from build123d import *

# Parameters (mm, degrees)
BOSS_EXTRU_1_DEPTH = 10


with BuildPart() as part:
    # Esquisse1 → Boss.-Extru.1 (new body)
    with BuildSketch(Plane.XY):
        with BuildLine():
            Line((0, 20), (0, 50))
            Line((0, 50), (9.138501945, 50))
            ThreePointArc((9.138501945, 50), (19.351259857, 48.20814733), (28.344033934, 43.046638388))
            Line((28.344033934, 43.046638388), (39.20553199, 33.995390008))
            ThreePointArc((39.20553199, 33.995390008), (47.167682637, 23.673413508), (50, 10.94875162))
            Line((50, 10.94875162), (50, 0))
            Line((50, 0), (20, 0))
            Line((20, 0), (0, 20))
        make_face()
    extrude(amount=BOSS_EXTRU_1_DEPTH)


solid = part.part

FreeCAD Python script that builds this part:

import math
import FreeCAD as App
import Part
import Sketcher
from FreeCAD import Vector
Q = App.Units.Quantity

doc = App.newDocument("Part")
body = doc.addObject("PartDesign::Body", "Body")

# Sketch on XY plane
sketch1 = body.newObject("Sketcher::SketchObject", "Sketch")
sketch1.AttachmentSupport = (doc.getObject("XY_Plane"), [""])
sketch1.MapMode = "FlatFace"
sketch1.addGeometry(Part.LineSegment(Vector(0, 50, 0), Vector(0, 20, 0)), False)
sketch1.addGeometry(Part.LineSegment(Vector(0, 20, 0), Vector(20, 0, 0)), False)
sketch1.addGeometry(Part.LineSegment(Vector(20, 0, 0), Vector(50, 0, 0)), False)
sketch1.addGeometry(Part.LineSegment(Vector(50, 0, 0), Vector(50, 11, 0)), False)
sketch1.addGeometry(Part.ArcOfCircle(Part.Circle(Vector(20, 11, 0), Vector(0, 0, 1), 30), math.radians(0), math.radians(50)), False)
sketch1.addGeometry(Part.LineSegment(Vector(39, 34, 0), Vector(28, 43, 0)), False)
sketch1.addGeometry(Part.ArcOfCircle(Part.Circle(Vector(9, 20, 0), Vector(0, 0, 1), 30), math.radians(50), math.radians(90)), False)
sketch1.addGeometry(Part.LineSegment(Vector(9, 50, 0), Vector(0, 50, 0)), False)
sketch1.addConstraint(Sketcher.Constraint("Coincident", 0, 2, 1, 1))
sketch1.addConstraint(Sketcher.Constraint("Coincident", 1, 2, 2, 1))
sketch1.addConstraint(Sketcher.Constraint("Coincident", 2, 2, 3, 1))
sketch1.addConstraint(Sketcher.Constraint("Tangent", 3, 2, 4, 1))
sketch1.addConstraint(Sketcher.Constraint("Tangent", 4, 2, 5, 1))
sketch1.addConstraint(Sketcher.Constraint("Tangent", 5, 2, 6, 1))
sketch1.addConstraint(Sketcher.Constraint("Tangent", 6, 2, 7, 1))
sketch1.addConstraint(Sketcher.Constraint("Coincident", 7, 2, 0, 1))
sketch1.addConstraint(Sketcher.Constraint("Vertical", 0))
sketch1.addConstraint(Sketcher.Constraint("Horizontal", 2))
sketch1.addConstraint(Sketcher.Constraint("Vertical", 3))
sketch1.addConstraint(Sketcher.Constraint("Horizontal", 7))
sketch1.addConstraint(Sketcher.Constraint("Equal", 4, 6))
sketch1.addConstraint(Sketcher.Constraint("PointOnObject", 0, 2, -2))
sketch1.addConstraint(Sketcher.Constraint("PointOnObject", 1, 2, -1))
sketch1.addConstraint(Sketcher.Constraint("Horizontal", 6, 3, 0, 2))
sketch1.addConstraint(Sketcher.Constraint("Vertical", 4, 3, 1, 2))
sketch1.addConstraint(Sketcher.Constraint("Radius", 4, 30.0))
sketch1.addConstraint(Sketcher.Constraint("Angle", 1, Q("-45 deg")))
sketch1.addConstraint(Sketcher.Constraint("DistanceX", -1, 1, 4, 3, 20.0))
sketch1.addConstraint(Sketcher.Constraint("DistanceX", 7, 2, 7, 1, 9.138502))
sketch1.addConstraint(Sketcher.Constraint("Distance", 5, 14.138502))
pad1 = body.newObject("PartDesign::Pad", "Pad")
pad1.Profile = sketch1
pad1.Length = 10

doc.recompute()
